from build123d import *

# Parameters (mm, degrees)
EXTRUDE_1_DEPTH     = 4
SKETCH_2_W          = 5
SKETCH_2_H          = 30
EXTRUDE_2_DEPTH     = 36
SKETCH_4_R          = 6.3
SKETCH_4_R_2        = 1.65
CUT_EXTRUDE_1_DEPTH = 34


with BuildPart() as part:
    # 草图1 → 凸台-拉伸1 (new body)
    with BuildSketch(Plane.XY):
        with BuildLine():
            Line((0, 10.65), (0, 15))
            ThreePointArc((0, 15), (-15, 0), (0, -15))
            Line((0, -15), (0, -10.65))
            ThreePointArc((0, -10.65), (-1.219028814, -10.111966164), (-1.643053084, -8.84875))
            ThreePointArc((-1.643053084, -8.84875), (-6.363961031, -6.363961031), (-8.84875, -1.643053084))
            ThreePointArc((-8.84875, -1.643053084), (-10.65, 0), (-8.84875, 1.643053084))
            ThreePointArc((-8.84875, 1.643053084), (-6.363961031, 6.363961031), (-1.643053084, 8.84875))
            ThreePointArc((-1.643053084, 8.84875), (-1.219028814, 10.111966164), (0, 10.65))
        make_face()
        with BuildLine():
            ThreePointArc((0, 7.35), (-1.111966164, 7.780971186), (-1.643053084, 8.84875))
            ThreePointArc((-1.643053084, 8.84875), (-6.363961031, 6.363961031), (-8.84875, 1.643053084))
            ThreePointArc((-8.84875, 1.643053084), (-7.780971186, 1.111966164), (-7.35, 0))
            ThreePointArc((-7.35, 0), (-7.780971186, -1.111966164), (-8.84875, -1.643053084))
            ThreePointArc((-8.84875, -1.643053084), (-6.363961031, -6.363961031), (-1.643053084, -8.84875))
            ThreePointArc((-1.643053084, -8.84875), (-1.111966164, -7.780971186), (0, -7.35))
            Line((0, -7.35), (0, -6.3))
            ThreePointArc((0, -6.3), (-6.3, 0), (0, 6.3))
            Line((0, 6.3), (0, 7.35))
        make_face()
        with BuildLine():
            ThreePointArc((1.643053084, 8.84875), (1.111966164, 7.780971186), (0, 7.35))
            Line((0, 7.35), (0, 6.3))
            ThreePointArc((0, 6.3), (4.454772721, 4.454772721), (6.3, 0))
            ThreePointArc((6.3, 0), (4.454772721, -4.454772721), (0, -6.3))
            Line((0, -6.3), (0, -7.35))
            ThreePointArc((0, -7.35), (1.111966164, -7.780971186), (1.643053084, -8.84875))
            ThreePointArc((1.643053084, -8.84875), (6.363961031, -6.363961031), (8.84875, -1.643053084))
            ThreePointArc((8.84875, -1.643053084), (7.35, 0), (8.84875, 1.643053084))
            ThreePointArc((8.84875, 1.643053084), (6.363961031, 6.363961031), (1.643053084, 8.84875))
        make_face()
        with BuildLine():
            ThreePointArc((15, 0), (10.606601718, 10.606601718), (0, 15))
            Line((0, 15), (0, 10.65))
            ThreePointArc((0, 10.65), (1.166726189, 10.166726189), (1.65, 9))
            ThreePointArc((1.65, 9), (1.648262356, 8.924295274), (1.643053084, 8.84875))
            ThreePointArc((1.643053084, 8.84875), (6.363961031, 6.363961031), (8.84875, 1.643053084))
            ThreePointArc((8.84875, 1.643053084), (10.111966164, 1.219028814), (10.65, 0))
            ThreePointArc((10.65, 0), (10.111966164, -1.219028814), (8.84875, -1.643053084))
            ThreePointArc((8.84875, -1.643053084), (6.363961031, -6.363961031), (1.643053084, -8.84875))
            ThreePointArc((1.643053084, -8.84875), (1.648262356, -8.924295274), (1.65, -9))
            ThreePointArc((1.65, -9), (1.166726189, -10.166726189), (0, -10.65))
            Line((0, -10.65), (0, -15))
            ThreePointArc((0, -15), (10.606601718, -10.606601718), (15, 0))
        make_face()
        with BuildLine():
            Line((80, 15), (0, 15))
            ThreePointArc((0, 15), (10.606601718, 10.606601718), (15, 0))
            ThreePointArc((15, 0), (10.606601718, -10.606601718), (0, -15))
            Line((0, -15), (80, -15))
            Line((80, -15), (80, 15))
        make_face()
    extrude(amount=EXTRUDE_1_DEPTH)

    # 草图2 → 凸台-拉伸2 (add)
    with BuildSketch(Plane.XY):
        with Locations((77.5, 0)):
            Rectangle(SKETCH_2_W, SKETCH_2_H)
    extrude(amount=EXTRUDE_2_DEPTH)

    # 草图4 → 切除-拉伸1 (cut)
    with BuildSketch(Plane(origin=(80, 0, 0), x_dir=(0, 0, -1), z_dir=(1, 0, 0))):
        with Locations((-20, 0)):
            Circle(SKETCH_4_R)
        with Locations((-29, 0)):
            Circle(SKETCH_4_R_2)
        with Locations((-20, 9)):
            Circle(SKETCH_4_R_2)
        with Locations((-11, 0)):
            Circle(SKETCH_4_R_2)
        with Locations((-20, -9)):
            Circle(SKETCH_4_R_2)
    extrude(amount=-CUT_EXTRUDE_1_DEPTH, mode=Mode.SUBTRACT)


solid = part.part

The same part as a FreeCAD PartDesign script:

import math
import FreeCAD as App
import Part
import Sketcher

V = App.Vector


def add_polygon(sketch, points):
    """Adds a closed chain of lines whose ends are joined by coincident constraints."""
    first, n = sketch.GeometryCount, len(points)
    for a, b in zip(points, points[1:] + points[:1]):
        sketch.addGeometry(Part.LineSegment(App.Vector(*a, 0), App.Vector(*b, 0)), False)
    for i in range(n):
        sketch.addConstraint(Sketcher.Constraint("Coincident", first + i, 2, first + (i + 1) % n, 1))

doc = App.newDocument("Part")
body = doc.addObject("PartDesign::Body", "Body")

# Sketch on XY plane
sketch1 = body.newObject("Sketcher::SketchObject", "Sketch")
sketch1.AttachmentSupport = (doc.getObject("XY_Plane"), [""])
sketch1.MapMode = "FlatFace"
sketch1.addGeometry([
    Part.ArcOfCircle(Part.Circle(V(0, 0, 0), V(0, 0, 1), 15), math.radians(90), math.radians(270)),  # 0
    Part.LineSegment(V(0, -15, 0), V(80, -15, 0)),  # 1
    Part.LineSegment(V(80, -15, 0), V(80, 15, 0)),  # 2
    Part.LineSegment(V(80, 15, 0), V(0, 15, 0)),  # 3
    Part.ArcOfCircle(Part.Circle(V(0, -9, 0), V(0, 0, 1), 1.65), math.radians(175), math.radians(270)),  # 4
    Part.ArcOfCircle(Part.Circle(V(0, -9, 0), V(0, 0, 1), 1.65), math.radians(90), math.radians(175)),  # 5
    Part.ArcOfCircle(Part.Circle(V(0, -9, 0), V(0, 0, 1), 1.65), math.radians(5), math.radians(90)),  # 6
    Part.ArcOfCircle(Part.Circle(V(0, -9, 0), V(0, 0, 1), 1.65), math.radians(0), math.radians(5.26)),  # 7
    Part.ArcOfCircle(Part.Circle(V(0, -9, 0), V(0, 0, 1), 1.65), math.radians(-90), math.radians(0)),  # 8
    Part.ArcOfCircle(Part.Circle(V(9, 0, 0), V(0, 0, 1), 1.65), math.radians(95), math.radians(265)),  # 9
    Part.ArcOfCircle(Part.Circle(V(9, 0, 0), V(0, 0, 1), 1.65), math.radians(0), math.radians(95)),  # 10
    Part.ArcOfCircle(Part.Circle(V(9, 0, 0), V(0, 0, 1), 1.65), math.radians(-95), math.radians(0)),  # 11
    Part.ArcOfCircle(Part.Circle(V(0, 9, 0), V(0, 0, 1), 1.65), math.radians(-90), math.radians(-5)),  # 12
    Part.ArcOfCircle(Part.Circle(V(0, 9, 0), V(0, 0, 1), 1.65), math.radians(-175), math.radians(-90)),  # 13
    Part.ArcOfCircle(Part.Circle(V(0, 9, 0), V(0, 0, 1), 1.65), math.radians(90), math.radians(185)),  # 14
    Part.ArcOfCircle(Part.Circle(V(0, 9, 0), V(0, 0, 1), 1.65), math.radians(0), math.radians(90)),  # 15
    Part.ArcOfCircle(Part.Circle(V(0, 9, 0), V(0, 0, 1), 1.65), math.radians(-5.26), math.radians(0)),  # 16
    Part.ArcOfCircle(Part.Circle(V(0, 0, 0), V(0, 0, 1), 6.3), math.radians(90), math.radians(270)),  # 17
    Part.ArcOfCircle(Part.Circle(V(0, 0, 0), V(0, 0, 1), 6.3), math.radians(0), math.radians(90)),  # 18
    Part.ArcOfCircle(Part.Circle(V(0, 0, 0), V(0, 0, 1), 6.3), math.radians(-90), math.radians(0)),  # 19
    Part.ArcOfCircle(Part.Circle(V(-9, 0, 0), V(0, 0, 1), 1.65), math.radians(85), math.radians(275)),  # 20
    Part.ArcOfCircle(Part.Circle(V(-9, 0, 0), V(0, 0, 1), 1.65), math.radians(0), math.radians(85)),  # 21
    Part.ArcOfCircle(Part.Circle(V(-9, 0, 0), V(0, 0, 1), 1.65), math.radians(-85), math.radians(0)),  # 22
], False)
sketch1.addConstraint([
    Sketcher.Constraint("Tangent", 0, 2, 1, 1),
    Sketcher.Constraint("Coincident", 1, 2, 2, 1),
    Sketcher.Constraint("Coincident", 2, 2, 3, 1),
    Sketcher.Constraint("Tangent", 3, 2, 0, 1),
    Sketcher.Constraint("Tangent", 4, 1, 5, 2),
    Sketcher.Constraint("Tangent", 5, 1, 6, 2),
    Sketcher.Constraint("Tangent", 6, 1, 7, 2),
    Sketcher.Constraint("Tangent", 7, 1, 8, 2),
    Sketcher.Constraint("Tangent", 8, 1, 4, 2),
    Sketcher.Constraint("Tangent", 9, 1, 10, 2),
    Sketcher.Constraint("Tangent", 10, 1, 11, 2),
    Sketcher.Constraint("Tangent", 11, 1, 9, 2),
    Sketcher.Constraint("Tangent", 12, 1, 13, 2),
    Sketcher.Constraint("Tangent", 13, 1, 14, 2),
    Sketcher.Constraint("Tangent", 14, 1, 15, 2),
    Sketcher.Constraint("Tangent", 15, 1, 16, 2),
    Sketcher.Constraint("Tangent", 16, 1, 12, 2),
    Sketcher.Constraint("Tangent", 17, 1, 18, 2),
    Sketcher.Constraint("Tangent", 18, 1, 19, 2),
    Sketcher.Constraint("Tangent", 19, 1, 17, 2),
    Sketcher.Constraint("Tangent", 20, 1, 21, 2),
    Sketcher.Constraint("Tangent", 21, 1, 22, 2),
    Sketcher.Constraint("Tangent", 22, 1, 20, 2),
    Sketcher.Constraint("Horizontal", 1),
    Sketcher.Constraint("Vertical", 2),
    Sketcher.Constraint("Horizontal", 3),
    Sketcher.Constraint("Coincident", 0, 3, -1, 1),
    Sketcher.Constraint("Coincident", 17, 3, -1, 1),
    Sketcher.Constraint("Coincident", 6, 3, 4, 3),
    Sketcher.Constraint("Coincident", 14, 3, 12, 3),
    Sketcher.Constraint("Equal", 8, 9),
    Sketcher.Constraint("Equal", 11, 12),
    Sketcher.Constraint("Equal", 16, 20),
    Sketcher.Constraint("Symmetric", 4, 3, 12, 3, -1, 1),
    Sketcher.Constraint("Symmetric", 9, 3, 20, 3, -1, 1),
    Sketcher.Constraint("Symmetric", 4, 1, 6, 1, -2),
    Sketcher.Constraint("Symmetric", 9, 1, 20, 1, -2),
    Sketcher.Constraint("PointOnObject", 5, 1, -2),
    Sketcher.Constraint("PointOnObject", 8, 1, -2),
    Sketcher.Constraint("PointOnObject", 10, 1, -1),
    Sketcher.Constraint("PointOnObject", 12, 1, -2),
    Sketcher.Constraint("PointOnObject", 14, 1, -2),
    Sketcher.Constraint("PointOnObject", 17, 1, -2),
    Sketcher.Constraint("PointOnObject", 18, 1, -1),
    Sketcher.Constraint("PointOnObject", 19, 1, -2),
    Sketcher.Constraint("PointOnObject", 21, 1, -1),
    Sketcher.Constraint("Horizontal", 8, 3, 7, 1),
    Sketcher.Constraint("Horizontal", 16, 3, 15, 1),
    Sketcher.Constraint("Horizontal", 13, 1, 16, 1),
    Sketcher.Constraint("Horizontal", 11, 1, 22, 1),
    Sketcher.Constraint("Vertical", 9, 1, 11, 1),
    Sketcher.Constraint("Vertical", 4, 1, 13, 1),
    Sketcher.Constraint("Radius", 0, 15.0),
    Sketcher.Constraint("Radius", 17, 6.3),
    Sketcher.Constraint("DistanceX", 1, 1, 1, 2, 80.0),
    Sketcher.Constraint("Radius", 4, 1.65),
    Sketcher.Constraint("DistanceY", 4, 3, -1, 1, 9.0),
    Sketcher.Constraint("DistanceX", -1, 1, 9, 3, 9.0),
    Sketcher.Constraint("DistanceY", 4, 1, -1, 1, 8.84875),
    Sketcher.Constraint("DistanceX", -1, 1, 9, 1, 8.84875),
])
pad1 = body.newObject("PartDesign::Pad", "Pad")
pad1.Profile = sketch1
pad1.Length = 4

# Sketch on XY plane
sketch2 = body.newObject("Sketcher::SketchObject", "Sketch001")
sketch2.AttachmentSupport = (doc.getObject("XY_Plane"), [""])
sketch2.MapMode = "FlatFace"
add_polygon(sketch2, [(75, 15), (75, -15), (80, -15), (80, 15)])  # lines 0-3
sketch2.addConstraint([
    Sketcher.Constraint("Vertical", 0),
    Sketcher.Constraint("Horizontal", 1),
    Sketcher.Constraint("Vertical", 2),
    Sketcher.Constraint("Horizontal", 3),
    Sketcher.Constraint("DistanceX", 1, 1, 1, 2, 5.0),
    Sketcher.Constraint("DistanceY", 0, 2, 0, 1, 30.0),
    Sketcher.Constraint("DistanceX", -1, 1, 0, 2, 75.0),
    Sketcher.Constraint("DistanceY", 0, 2, -1, 1, 15.0),
])
pad2 = body.newObject("PartDesign::Pad", "Pad001")
pad2.Profile = sketch2
pad2.Length = 36

# Sketch on YZ plane
sketch3 = body.newObject("Sketcher::SketchObject", "Sketch002")
sketch3.AttachmentSupport = (doc.getObject("YZ_Plane"), [""])
sketch3.MapMode = "FlatFace"
sketch3.AttachmentOffset = App.Placement(V(0, 0, 80), App.Rotation())
sketch3.addGeometry([
    Part.Circle(V(0, 20, 0), V(0, 0, 1), 6.3),  # 0
    Part.Circle(V(0, 29, 0), V(0, 0, 1), 1.6),  # 1
    Part.Circle(V(9, 20, 0), V(0, 0, 1), 1.6),  # 2
    Part.Circle(V(0, 11, 0), V(0, 0, 1), 1.6),  # 3
    Part.Circle(V(-9, 20, 0), V(0, 0, 1), 1.6),  # 4
], False)
sketch3.addConstraint([
    Sketcher.Constraint("Equal", 1, 2),
    Sketcher.Constraint("Equal", 2, 3),
    Sketcher.Constraint("Equal", 3, 4),
    Sketcher.Constraint("Symmetric", 2, 3, 4, 3, -2),
    Sketcher.Constraint("PointOnObject", 0, 3, -2),
    Sketcher.Constraint("PointOnObject", 1, 3, -2),
    Sketcher.Constraint("PointOnObject", 3, 3, -2),
    Sketcher.Constraint("Horizontal", 0, 3, 2, 3),
    Sketcher.Constraint("Diameter", 0, 12.6),
    Sketcher.Constraint("Diameter", 1, 3.3),
    Sketcher.Constraint("DistanceY", -1, 1, 0, 3, 20.0),
    Sketcher.Constraint("DistanceY", -1, 1, 1, 3, 29.0),
    Sketcher.Constraint("DistanceX", -1, 1, 2, 3, 9.0),
    Sketcher.Constraint("DistanceY", -1, 1, 3, 3, 11.0),
])
pocket1 = body.newObject("PartDesign::Pocket", "Pocket")
pocket1.Profile = sketch3
pocket1.Length = 34

doc.recompute()
